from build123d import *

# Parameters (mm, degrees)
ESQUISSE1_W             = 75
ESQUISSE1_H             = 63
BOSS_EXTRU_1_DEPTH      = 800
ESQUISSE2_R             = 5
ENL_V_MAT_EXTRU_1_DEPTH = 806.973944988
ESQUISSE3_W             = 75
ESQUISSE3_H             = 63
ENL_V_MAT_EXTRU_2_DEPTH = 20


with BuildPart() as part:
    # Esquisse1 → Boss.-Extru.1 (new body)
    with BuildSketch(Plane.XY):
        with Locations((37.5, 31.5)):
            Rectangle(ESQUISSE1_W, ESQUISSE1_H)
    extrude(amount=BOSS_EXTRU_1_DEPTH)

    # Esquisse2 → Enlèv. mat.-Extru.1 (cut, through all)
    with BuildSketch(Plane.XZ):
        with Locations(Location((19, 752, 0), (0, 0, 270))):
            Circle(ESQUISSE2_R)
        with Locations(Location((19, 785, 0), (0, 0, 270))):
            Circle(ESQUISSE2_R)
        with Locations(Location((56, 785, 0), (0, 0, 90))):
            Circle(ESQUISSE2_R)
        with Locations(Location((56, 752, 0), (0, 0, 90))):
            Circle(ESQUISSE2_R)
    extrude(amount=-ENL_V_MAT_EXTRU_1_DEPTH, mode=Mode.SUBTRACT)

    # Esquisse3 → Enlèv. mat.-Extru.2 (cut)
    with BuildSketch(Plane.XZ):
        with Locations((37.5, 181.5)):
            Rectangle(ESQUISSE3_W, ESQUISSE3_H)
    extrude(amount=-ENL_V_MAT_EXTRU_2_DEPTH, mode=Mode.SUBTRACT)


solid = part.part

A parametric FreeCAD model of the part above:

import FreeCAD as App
import Part
import Sketcher
Q = App.Units.Quantity


def add_polygon(sketch, points):
    """Adds a closed chain of lines whose ends are joined by coincident constraints."""
    first, n = sketch.GeometryCount, len(points)
    for a, b in zip(points, points[1:] + points[:1]):
        sketch.addGeometry(Part.LineSegment(App.Vector(*a, 0), App.Vector(*b, 0)), False)
    for i in range(n):
        sketch.addConstraint(Sketcher.Constraint("Coincident", first + i, 2, first + (i + 1) % n, 1))

doc = App.newDocument("Part")
body = doc.addObject("PartDesign::Body", "Body")

# Sketch on XY plane
sketch1 = body.newObject("Sketcher::SketchObject", "Sketch")
sketch1.AttachmentSupport = (doc.getObject("XY_Plane"), [""])
sketch1.MapMode = "FlatFace"
add_polygon(sketch1, [(0, 63), (0, 0), (75, 0), (75, 63)])  # lines 0-3
sketch1.addConstraint(Sketcher.Constraint("Vertical", 0))
sketch1.addConstraint(Sketcher.Constraint("Horizontal", 1))
sketch1.addConstraint(Sketcher.Constraint("Vertical", 2))
sketch1.addConstraint(Sketcher.Constraint("Horizontal", 3))
sketch1.addConstraint(Sketcher.Constraint("Coincident", 0, 2, -1, 1))
sketch1.addConstraint(Sketcher.Constraint("DistanceX", 1, 1, 1, 2, Q("75 mm")))
sketch1.addConstraint(Sketcher.Constraint("DistanceY", 0, 2, 0, 1, Q("63 mm")))
pad1 = body.newObject("PartDesign::Pad", "Pad")
pad1.Profile = sketch1
pad1.Length = 800

# Sketch on XZ plane
sketch2 = body.newObject("Sketcher::SketchObject", "Sketch001")
sketch2.AttachmentSupport = (doc.getObject("XZ_Plane"), [""])
sketch2.MapMode = "FlatFace"
sketch2.addGeometry(Part.Circle(App.Vector(19, 752, 0), App.Vector(0, 0, 1), 5), False)
sketch2.addGeometry(Part.Circle(App.Vector(19, 785, 0), App.Vector(0, 0, 1), 5), False)
sketch2.addGeometry(Part.Circle(App.Vector(56, 785, 0), App.Vector(0, 0, 1), 5), False)
sketch2.addGeometry(Part.Circle(App.Vector(56, 752, 0), App.Vector(0, 0, 1), 5), False)
sketch2.addConstraint(Sketcher.Constraint("Equal", 0, 1))
sketch2.addConstraint(Sketcher.Constraint("Equal", 1, 2))
sketch2.addConstraint(Sketcher.Constraint("Equal", 2, 3))
sketch2.addConstraint(Sketcher.Constraint("Horizontal", 1, 3, 2, 3))
sketch2.addConstraint(Sketcher.Constraint("Horizontal", 0, 3, 3, 3))
sketch2.addConstraint(Sketcher.Constraint("Vertical", 0, 3, 1, 3))
sketch2.addConstraint(Sketcher.Constraint("Vertical", 2, 3, 3, 3))
sketch2.addConstraint(Sketcher.Constraint("Diameter", 0, Q("10 mm")))
sketch2.addConstraint(Sketcher.Constraint("DistanceX", -1, 1, 0, 3, Q("19 mm")))
sketch2.addConstraint(Sketcher.Constraint("DistanceY", -1, 1, 0, 3, Q("752 mm")))
sketch2.addConstraint(Sketcher.Constraint("DistanceY", -1, 1, 1, 3, Q("785 mm")))
sketch2.addConstraint(Sketcher.Constraint("DistanceX", -1, 1, 2, 3, Q("56 mm")))
pocket1 = body.newObject("PartDesign::Pocket", "Pocket")
pocket1.Profile = sketch2
pocket1.Type = "ThroughAll"

# Sketch on XZ plane
sketch3 = body.newObject("Sketcher::SketchObject", "Sketch002")
sketch3.AttachmentSupport = (doc.getObject("XZ_Plane"), [""])
sketch3.MapMode = "FlatFace"
add_polygon(sketch3, [(0, 213), (0, 150), (75, 150), (75, 213)])  # lines 0-3
sketch3.addConstraint(Sketcher.Constraint("Vertical", 0))
sketch3.addConstraint(Sketcher.Constraint("Horizontal", 1))
sketch3.addConstraint(Sketcher.Constraint("Vertical", 2))
sketch3.addConstraint(Sketcher.Constraint("Horizontal", 3))
sketch3.addConstraint(Sketcher.Constraint("PointOnObject", 0, 2, -2))
sketch3.addConstraint(Sketcher.Constraint("DistanceX", 1, 1, 1, 2, Q("75 mm")))
sketch3.addConstraint(Sketcher.Constraint("DistanceY", 0, 2, 0, 1, Q("63 mm")))
sketch3.addConstraint(Sketcher.Constraint("DistanceY", -1, 1, 0, 2, Q("150 mm")))
pocket2 = body.newObject("PartDesign::Pocket", "Pocket001")
pocket2.Profile = sketch3
pocket2.Length = 20

doc.recompute()
